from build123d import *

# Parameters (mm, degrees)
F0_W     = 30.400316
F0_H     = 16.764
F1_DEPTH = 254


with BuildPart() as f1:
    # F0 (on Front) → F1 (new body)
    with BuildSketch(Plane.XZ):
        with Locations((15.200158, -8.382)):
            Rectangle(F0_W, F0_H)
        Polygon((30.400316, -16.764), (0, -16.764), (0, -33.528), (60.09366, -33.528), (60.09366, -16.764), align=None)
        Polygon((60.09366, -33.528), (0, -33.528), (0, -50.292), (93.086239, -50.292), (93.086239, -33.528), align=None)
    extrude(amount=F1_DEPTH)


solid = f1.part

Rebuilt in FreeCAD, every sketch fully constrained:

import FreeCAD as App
import Part
import Sketcher
from FreeCAD import Vector
Q = App.Units.Quantity


def add_polygon(sketch, points):
    """Adds a closed chain of lines whose ends are joined by coincident constraints."""
    first, n = sketch.GeometryCount, len(points)
    for a, b in zip(points, points[1:] + points[:1]):
        sketch.addGeometry(Part.LineSegment(App.Vector(*a, 0), App.Vector(*b, 0)), False)
    for i in range(n):
        sketch.addConstraint(Sketcher.Constraint("Coincident", first + i, 2, first + (i + 1) % n, 1))

doc = App.newDocument("Part")
body = doc.addObject("PartDesign::Body", "Body")

# Sketch on XZ plane
sketch1 = body.newObject("Sketcher::SketchObject", "Sketch")
sketch1.AttachmentSupport = (doc.getObject("XZ_Plane"), [""])
sketch1.MapMode = "FlatFace"
add_polygon(sketch1, [(0, 0), (0, -50.292), (93.086239, -50.292), (93.086239, -33.528), (60.09366, -33.528), (60.09366, -16.764), (30.400316, -16.764), (30.400316, 0)])  # lines 0-7
sketch1.addConstraint(Sketcher.Constraint("Vertical", 0))
sketch1.addConstraint(Sketcher.Constraint("Horizontal", 1))
sketch1.addConstraint(Sketcher.Constraint("Vertical", 2))
sketch1.addConstraint(Sketcher.Constraint("Horizontal", 3))
sketch1.addConstraint(Sketcher.Constraint("Vertical", 4))
sketch1.addConstraint(Sketcher.Constraint("Horizontal", 5))
sketch1.addConstraint(Sketcher.Constraint("Vertical", 6))
sketch1.addConstraint(Sketcher.Constraint("Horizontal", 7))
sketch1.addConstraint(Sketcher.Constraint("Coincident", 7, 2, -1, 1))
sketch1.addConstraint(Sketcher.Constraint("Equal", 2, 4))
sketch1.addConstraint(Sketcher.Constraint("Equal", 4, 6))
sketch1.addConstraint(Sketcher.Constraint("DistanceY", 0, 2, 0, 1, Q("1.98 in")))
sketch1.addConstraint(Sketcher.Constraint("DistanceX", 1, 1, 1, 2, Q("93.086239 mm")))
sketch1.addConstraint(Sketcher.Constraint("DistanceX", 3, 2, 3, 1, Q("32.992579 mm")))
sketch1.addConstraint(Sketcher.Constraint("DistanceX", 5, 2, 5, 1, Q("29.693344 mm")))
pad1 = body.newObject("PartDesign::Pad", "Pad")
pad1.Profile = sketch1
pad1.Length = Q("10 in")

doc.recompute()
